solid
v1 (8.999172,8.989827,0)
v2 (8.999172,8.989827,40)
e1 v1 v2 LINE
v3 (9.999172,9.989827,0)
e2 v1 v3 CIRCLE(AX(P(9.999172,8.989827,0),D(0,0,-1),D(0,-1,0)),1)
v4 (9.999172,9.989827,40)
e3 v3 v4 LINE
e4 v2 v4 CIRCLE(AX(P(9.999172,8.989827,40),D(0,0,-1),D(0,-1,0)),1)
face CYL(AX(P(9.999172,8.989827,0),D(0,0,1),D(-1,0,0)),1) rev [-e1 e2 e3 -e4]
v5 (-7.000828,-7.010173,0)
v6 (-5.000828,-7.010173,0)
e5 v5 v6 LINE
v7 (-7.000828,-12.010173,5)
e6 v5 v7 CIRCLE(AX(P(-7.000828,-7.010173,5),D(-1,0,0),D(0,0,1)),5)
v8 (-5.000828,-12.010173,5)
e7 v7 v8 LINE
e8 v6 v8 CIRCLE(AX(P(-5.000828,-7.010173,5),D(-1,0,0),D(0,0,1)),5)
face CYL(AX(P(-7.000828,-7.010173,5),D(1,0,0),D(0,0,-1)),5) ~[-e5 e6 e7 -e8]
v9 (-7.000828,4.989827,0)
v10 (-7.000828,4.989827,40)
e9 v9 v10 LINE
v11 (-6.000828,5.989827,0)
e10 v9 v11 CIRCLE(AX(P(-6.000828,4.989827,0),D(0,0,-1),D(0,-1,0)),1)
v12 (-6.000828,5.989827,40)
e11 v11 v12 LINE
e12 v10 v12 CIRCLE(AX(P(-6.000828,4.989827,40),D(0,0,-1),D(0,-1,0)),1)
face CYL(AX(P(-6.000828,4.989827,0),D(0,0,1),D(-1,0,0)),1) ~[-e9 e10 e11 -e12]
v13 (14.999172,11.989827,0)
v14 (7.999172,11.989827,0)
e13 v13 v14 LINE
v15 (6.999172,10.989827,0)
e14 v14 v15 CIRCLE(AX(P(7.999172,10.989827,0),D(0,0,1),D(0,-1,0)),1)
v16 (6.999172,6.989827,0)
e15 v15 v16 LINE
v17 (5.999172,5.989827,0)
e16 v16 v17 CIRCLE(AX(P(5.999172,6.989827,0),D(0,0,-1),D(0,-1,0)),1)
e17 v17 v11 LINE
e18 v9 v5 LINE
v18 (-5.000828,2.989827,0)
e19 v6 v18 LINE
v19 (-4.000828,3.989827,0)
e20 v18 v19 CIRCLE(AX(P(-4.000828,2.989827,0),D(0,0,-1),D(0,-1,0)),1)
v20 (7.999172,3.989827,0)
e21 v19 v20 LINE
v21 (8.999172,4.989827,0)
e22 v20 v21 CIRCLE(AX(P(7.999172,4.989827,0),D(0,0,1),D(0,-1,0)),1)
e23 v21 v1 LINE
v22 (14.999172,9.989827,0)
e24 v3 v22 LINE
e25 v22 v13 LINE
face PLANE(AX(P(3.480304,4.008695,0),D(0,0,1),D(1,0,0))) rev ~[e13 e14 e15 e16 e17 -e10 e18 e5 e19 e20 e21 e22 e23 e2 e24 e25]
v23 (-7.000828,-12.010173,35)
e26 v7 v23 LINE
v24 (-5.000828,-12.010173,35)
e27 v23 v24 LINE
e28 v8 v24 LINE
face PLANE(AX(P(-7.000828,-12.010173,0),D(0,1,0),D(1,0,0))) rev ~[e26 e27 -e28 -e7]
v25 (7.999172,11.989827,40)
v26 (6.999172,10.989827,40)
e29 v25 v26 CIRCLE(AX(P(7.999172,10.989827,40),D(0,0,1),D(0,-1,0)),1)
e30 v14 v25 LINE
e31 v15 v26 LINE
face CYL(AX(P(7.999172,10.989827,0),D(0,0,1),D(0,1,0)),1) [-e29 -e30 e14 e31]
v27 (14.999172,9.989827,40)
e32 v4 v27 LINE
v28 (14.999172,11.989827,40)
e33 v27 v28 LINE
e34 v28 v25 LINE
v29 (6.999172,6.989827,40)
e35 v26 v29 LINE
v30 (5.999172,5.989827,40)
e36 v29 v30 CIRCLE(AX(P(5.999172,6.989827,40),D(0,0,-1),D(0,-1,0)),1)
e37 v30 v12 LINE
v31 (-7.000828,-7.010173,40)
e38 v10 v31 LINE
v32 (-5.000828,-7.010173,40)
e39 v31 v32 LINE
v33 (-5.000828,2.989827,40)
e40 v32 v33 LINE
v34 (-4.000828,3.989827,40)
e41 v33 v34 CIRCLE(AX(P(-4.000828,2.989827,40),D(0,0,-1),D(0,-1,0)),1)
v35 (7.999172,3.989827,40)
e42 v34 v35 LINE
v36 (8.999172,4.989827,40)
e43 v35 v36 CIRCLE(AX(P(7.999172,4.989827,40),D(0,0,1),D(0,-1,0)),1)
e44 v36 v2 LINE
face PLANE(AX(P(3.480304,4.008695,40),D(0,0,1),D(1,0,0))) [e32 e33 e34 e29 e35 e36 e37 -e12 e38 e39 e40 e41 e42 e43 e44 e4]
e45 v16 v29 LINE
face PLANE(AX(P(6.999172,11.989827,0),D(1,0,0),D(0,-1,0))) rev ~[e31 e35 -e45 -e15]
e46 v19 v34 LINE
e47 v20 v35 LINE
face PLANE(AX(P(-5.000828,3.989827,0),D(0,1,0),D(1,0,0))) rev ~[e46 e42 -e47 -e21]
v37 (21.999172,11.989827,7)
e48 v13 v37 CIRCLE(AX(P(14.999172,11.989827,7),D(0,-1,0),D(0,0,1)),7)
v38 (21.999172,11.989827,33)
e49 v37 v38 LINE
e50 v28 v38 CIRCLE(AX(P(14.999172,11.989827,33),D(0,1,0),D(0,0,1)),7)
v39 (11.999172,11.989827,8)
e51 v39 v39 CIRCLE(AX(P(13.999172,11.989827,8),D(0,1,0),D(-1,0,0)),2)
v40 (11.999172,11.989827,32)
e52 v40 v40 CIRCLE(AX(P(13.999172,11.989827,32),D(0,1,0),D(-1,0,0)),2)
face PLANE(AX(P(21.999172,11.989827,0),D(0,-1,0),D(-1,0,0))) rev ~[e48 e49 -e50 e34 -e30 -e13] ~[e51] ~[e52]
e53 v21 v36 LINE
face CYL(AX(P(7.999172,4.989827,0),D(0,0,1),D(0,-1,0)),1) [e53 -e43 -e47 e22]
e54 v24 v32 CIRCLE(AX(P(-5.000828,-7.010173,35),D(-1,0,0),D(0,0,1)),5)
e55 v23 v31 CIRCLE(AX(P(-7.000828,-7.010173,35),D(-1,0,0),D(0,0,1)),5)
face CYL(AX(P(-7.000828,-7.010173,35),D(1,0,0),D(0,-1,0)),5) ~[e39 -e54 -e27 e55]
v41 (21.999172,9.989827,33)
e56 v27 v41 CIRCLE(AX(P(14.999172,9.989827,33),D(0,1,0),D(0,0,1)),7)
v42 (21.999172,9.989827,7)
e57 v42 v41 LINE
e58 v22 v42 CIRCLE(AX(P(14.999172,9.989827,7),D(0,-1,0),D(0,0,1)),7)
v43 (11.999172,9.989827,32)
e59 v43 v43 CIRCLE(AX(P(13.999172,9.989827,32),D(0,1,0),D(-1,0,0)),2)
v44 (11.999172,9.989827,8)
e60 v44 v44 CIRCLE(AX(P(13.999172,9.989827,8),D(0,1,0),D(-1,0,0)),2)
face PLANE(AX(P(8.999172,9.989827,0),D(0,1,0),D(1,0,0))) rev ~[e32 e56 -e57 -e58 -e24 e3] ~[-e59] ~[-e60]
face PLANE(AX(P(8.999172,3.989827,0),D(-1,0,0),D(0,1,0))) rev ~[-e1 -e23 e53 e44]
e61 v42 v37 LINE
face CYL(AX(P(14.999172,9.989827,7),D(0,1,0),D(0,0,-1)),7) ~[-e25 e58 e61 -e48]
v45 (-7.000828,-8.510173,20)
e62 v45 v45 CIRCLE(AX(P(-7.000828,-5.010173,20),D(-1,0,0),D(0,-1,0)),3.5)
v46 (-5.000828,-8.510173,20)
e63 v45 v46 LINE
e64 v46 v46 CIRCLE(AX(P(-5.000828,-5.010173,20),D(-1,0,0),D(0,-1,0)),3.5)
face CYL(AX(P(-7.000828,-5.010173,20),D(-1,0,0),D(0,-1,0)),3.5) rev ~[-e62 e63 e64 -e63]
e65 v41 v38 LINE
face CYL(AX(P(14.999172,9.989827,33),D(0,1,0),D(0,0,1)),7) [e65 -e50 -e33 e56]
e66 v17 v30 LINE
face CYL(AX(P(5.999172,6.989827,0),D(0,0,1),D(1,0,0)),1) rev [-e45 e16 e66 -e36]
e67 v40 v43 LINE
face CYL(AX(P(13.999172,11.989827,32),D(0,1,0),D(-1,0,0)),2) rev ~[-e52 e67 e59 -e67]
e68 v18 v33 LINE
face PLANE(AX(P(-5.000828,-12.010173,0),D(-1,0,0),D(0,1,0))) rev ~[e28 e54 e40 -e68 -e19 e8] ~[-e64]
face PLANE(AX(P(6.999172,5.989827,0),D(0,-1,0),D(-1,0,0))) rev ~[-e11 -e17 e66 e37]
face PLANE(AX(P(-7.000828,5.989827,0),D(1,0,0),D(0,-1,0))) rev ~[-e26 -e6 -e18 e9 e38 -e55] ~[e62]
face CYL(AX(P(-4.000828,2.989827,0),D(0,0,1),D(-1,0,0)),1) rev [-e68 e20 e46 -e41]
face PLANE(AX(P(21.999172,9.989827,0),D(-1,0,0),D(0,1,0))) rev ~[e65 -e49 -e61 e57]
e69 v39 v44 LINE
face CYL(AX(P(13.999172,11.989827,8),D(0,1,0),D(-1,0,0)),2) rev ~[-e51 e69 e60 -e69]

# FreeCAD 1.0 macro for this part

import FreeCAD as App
import Part
import Sketcher
from FreeCAD import Vector
Q = App.Units.Quantity


def edges_at(feature, points):
    """Names of the edges that pass closest to the given points."""
    edges = feature.Shape.Edges
    near = lambda p: min(range(len(edges)), key=lambda i: edges[i].distToShape(Part.Vertex(*p))[0])
    return sorted({f"Edge{near(p) + 1}" for p in points})

doc = App.newDocument("Part")
params = doc.addObject("Spreadsheet::Sheet", "Params")
for row, (alias, value) in enumerate([
    ("sketch1_width", "2 mm"),
    ("sketch1_width2", "14 mm"),
    ("sketch1_width3", "13 mm"),
    ("sketch1_height", "18 mm"),
    ("sketch1_height2", "6 mm"),
    ("pad1_length", "40 mm"),
    ("fillet_radius", "1 mm"),
    ("fillet2_radius", "5 mm"),
    ("sketch2_diameter", "7 mm"),
    ("pocket1_length", "25 mm"),
    ("sketch3_diameter", "4 mm"),
    ("pocket2_length", "25 mm"),
    ("fillet3_radius", "7 mm"),
], start=1):
    params.set(f"A{row}", alias)
    params.set(f"B{row}", "=" + value)
    params.setAlias(f"B{row}", alias)

body = doc.addObject("PartDesign::Body", "Body")

# Sketch on XY plane
sketch1 = doc.addObject("Sketcher::SketchObject", "Sketch")
body.addObject(sketch1)
sketch1.AttachmentSupport = (doc.XY_Plane, [""])
sketch1.MapMode = "FlatFace"
sketch1.addGeometry([
    Part.LineSegment(Vector(-7, 6, 0), Vector(-7, -12, 0)),  # 0
    Part.LineSegment(Vector(-7, -12, 0), Vector(-5, -12, 0)),  # 1
    Part.LineSegment(Vector(-5, -12, 0), Vector(-5, 4, 0)),  # 2
    Part.LineSegment(Vector(-5, 4, 0), Vector(9, 4, 0)),  # 3
    Part.LineSegment(Vector(9, 4, 0), Vector(9, 10, 0)),  # 4
    Part.LineSegment(Vector(9, 10, 0), Vector(22, 10, 0)),  # 5
    Part.LineSegment(Vector(22, 10, 0), Vector(22, 12, 0)),  # 6
    Part.LineSegment(Vector(22, 12, 0), Vector(7, 12, 0)),  # 7
    Part.LineSegment(Vector(7, 12, 0), Vector(7, 6, 0)),  # 8
    Part.LineSegment(Vector(7, 6, 0), Vector(-7, 6, 0)),  # 9
], False)
sketch1.addConstraint([
    Sketcher.Constraint("Coincident", 0, 2, 1, 1),
    Sketcher.Constraint("Coincident", 1, 2, 2, 1),
    Sketcher.Constraint("Coincident", 2, 2, 3, 1),
    Sketcher.Constraint("Coincident", 3, 2, 4, 1),
    Sketcher.Constraint("Coincident", 4, 2, 5, 1),
    Sketcher.Constraint("Coincident", 5, 2, 6, 1),
    Sketcher.Constraint("Coincident", 6, 2, 7, 1),
    Sketcher.Constraint("Coincident", 7, 2, 8, 1),
    Sketcher.Constraint("Coincident", 8, 2, 9, 1),
    Sketcher.Constraint("Coincident", 9, 2, 0, 1),
    Sketcher.Constraint("Vertical", 0),
    Sketcher.Constraint("Horizontal", 1),
    Sketcher.Constraint("Vertical", 2),
    Sketcher.Constraint("Horizontal", 3),
    Sketcher.Constraint("Vertical", 4),
    Sketcher.Constraint("Horizontal", 5),
    Sketcher.Constraint("Vertical", 6),
    Sketcher.Constraint("Horizontal", 7),
    Sketcher.Constraint("Vertical", 8),
    Sketcher.Constraint("Horizontal", 9),
    Sketcher.Constraint("Equal", 3, 9),
    Sketcher.Constraint("Equal", 1, 6),
    Sketcher.Constraint("Equal", 4, 8),
    Sketcher.Constraint("DistanceX", 1, 1, 1, 2, Q("2 mm")),
    Sketcher.Constraint("DistanceX", 3, 1, 3, 2, Q("14 mm")),
    Sketcher.Constraint("DistanceX", 5, 1, 5, 2, Q("13 mm")),
    Sketcher.Constraint("DistanceY", 0, 2, 0, 1, Q("18 mm")),
    Sketcher.Constraint("DistanceY", 4, 1, 4, 2, Q("6 mm")),
    Sketcher.Constraint("DistanceX", 0, 2, -1, 1, Q("7.000828 mm")),
    Sketcher.Constraint("DistanceY", 0, 2, -1, 1, Q("12.010173 mm")),
])
sketch1.setExpression("Constraints[23]", "Params.sketch1_width")
sketch1.setExpression("Constraints[24]", "Params.sketch1_width2")
sketch1.setExpression("Constraints[25]", "Params.sketch1_width3")
sketch1.setExpression("Constraints[26]", "Params.sketch1_height")
sketch1.setExpression("Constraints[27]", "Params.sketch1_height2")
pad1 = doc.addObject("PartDesign::Pad", "Pad")
body.addObject(pad1)
pad1.Profile = sketch1
pad1.setExpression("Length", "Params.pad1_length")
doc.recompute()

fillet = doc.addObject("PartDesign::Fillet", "Fillet")
body.addObject(fillet)
fillet.Base = (pad1, edges_at(pad1, [
    (-7.001, 5.99, 20),
    (6.999, 11.99, 20),
    (-5.001, 3.99, 20),
    (8.999, 9.99, 20),
    (8.999, 3.99, 20),
    (6.999, 5.99, 20),
]))
fillet.setExpression("Radius", "Params.fillet_radius")
doc.recompute()

fillet2 = doc.addObject("PartDesign::Fillet", "Fillet001")
body.addObject(fillet2)
fillet2.Base = (fillet, edges_at(fillet, [(-6.001, -12.01, 0), (-6.001, -12.01, 40)]))
fillet2.setExpression("Radius", "Params.fillet2_radius")

# Sketch on YZ plane
sketch2 = doc.addObject("Sketcher::SketchObject", "Sketch001")
body.addObject(sketch2)
sketch2.AttachmentSupport = (doc.YZ_Plane, [""])
sketch2.MapMode = "FlatFace"
sketch2.AttachmentOffset = App.Placement(Vector(0, 0, -7.000828), App.Rotation())
sketch2.addGeometry(Part.Circle(Vector(-5, 20, 0), Vector(0, 0, 1), 3.5), False)
sketch2.addConstraint([
    Sketcher.Constraint("Diameter", 0, Q("7 mm")),
    Sketcher.Constraint("DistanceY", -1, 1, 0, 3, Q("20 mm")),
    Sketcher.Constraint("DistanceX", 0, 3, -1, 1, Q("5.010173 mm")),
])
sketch2.setExpression("Constraints[0]", "Params.sketch2_diameter")
pocket1 = doc.addObject("PartDesign::Pocket", "Pocket")
body.addObject(pocket1)
pocket1.Profile = sketch2
pocket1.setExpression("Length", "Params.pocket1_length")
pocket1.Reversed = True

# Sketch on XZ plane
sketch3 = doc.addObject("Sketcher::SketchObject", "Sketch002")
body.addObject(sketch3)
sketch3.AttachmentSupport = (doc.XZ_Plane, [""])
sketch3.MapMode = "FlatFace"
sketch3.AttachmentOffset = App.Placement(Vector(0, 0, -11.989827), App.Rotation())
sketch3.addGeometry([
    Part.Circle(Vector(14, 8, 0), Vector(0, 0, 1), 2),
    Part.Circle(Vector(14, 32, 0), Vector(0, 0, 1), 2),
], False)
sketch3.addConstraint([
    Sketcher.Constraint("Equal", 0, 1),
    Sketcher.Constraint("Vertical", 0, 3, 1, 3),
    Sketcher.Constraint("Diameter", 0, Q("4 mm")),
    Sketcher.Constraint("DistanceY", -1, 1, 0, 3, Q("8 mm")),
    Sketcher.Constraint("DistanceY", -1, 1, 1, 3, Q("32 mm")),
    Sketcher.Constraint("DistanceX", -1, 1, 0, 3, Q("13.999172 mm")),
])
sketch3.setExpression("Constraints[2]", "Params.sketch3_diameter")
pocket2 = doc.addObject("PartDesign::Pocket", "Pocket001")
body.addObject(pocket2)
pocket2.Profile = sketch3
pocket2.setExpression("Length", "Params.pocket2_length")
pocket2.Reversed = True
doc.recompute()

fillet3 = doc.addObject("PartDesign::Fillet", "Fillet002")
body.addObject(fillet3)
fillet3.Base = (pocket2, edges_at(pocket2, [(21.999, 10.99, 0), (21.999, 10.99, 40)]))
fillet3.setExpression("Radius", "Params.fillet3_radius")

doc.recompute()
